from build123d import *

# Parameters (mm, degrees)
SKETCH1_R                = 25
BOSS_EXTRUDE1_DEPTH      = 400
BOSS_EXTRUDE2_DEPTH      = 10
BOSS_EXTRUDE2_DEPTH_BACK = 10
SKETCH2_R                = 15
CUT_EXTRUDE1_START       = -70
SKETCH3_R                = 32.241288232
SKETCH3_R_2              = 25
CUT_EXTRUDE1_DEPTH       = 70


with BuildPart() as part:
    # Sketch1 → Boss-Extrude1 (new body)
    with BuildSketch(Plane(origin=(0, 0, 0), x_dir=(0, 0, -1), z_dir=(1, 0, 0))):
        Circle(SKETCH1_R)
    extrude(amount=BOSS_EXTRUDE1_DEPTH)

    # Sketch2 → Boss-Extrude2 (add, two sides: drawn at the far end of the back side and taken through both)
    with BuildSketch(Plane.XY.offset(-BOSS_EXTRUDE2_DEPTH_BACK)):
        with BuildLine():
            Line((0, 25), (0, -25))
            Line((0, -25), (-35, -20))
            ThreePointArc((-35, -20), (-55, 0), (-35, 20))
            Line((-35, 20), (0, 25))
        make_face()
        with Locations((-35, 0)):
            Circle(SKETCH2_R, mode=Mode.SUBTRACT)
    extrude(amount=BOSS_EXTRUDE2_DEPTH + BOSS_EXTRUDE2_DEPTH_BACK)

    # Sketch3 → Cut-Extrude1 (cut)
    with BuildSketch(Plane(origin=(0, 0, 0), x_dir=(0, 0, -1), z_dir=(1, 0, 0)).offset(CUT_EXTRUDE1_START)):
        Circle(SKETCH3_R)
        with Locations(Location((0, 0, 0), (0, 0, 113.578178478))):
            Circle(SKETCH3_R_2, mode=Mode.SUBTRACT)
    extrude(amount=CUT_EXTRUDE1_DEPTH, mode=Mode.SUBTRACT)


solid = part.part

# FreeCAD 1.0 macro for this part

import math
import FreeCAD as App
import Part
import Sketcher

V = App.Vector
Q = App.Units.Quantity

doc = App.newDocument("Part")
params = doc.addObject("Spreadsheet::Sheet", "Params")
for row, (alias, value) in enumerate([
    ("sketch1_diameter", "50 mm"),
    ("pad1_length", "400 mm"),
    ("sketch2_diameter", "30 mm"),
    ("sketch2_radius", "20 mm"),
    ("sketch2_height", "50 mm"),
    ("pad2_length", "10 mm"),
    ("pad2_length2", "10 mm"),
    ("sketch3_diameter", "50 mm"),
    ("pocket1_length", "70 mm"),
], start=1):
    params.set(f"A{row}", alias)
    params.set(f"B{row}", "=" + value)
    params.setAlias(f"B{row}", alias)

body = doc.addObject("PartDesign::Body", "Body")

sketch1 = body.newObject("Sketcher::SketchObject", "Sketch")
sketch1.AttachmentSupport = (doc.getObject("YZ_Plane"), [""])
sketch1.MapMode = "FlatFace"
sketch1.addGeometry(Part.Circle(V(0, 0, 0), V(0, 0, 1), 25), False)
sketch1.addConstraint([
    Sketcher.Constraint("Coincident", 0, 3, -1, 1),
    Sketcher.Constraint("Diameter", 0, Q("50 mm")),
])
sketch1.setExpression("Constraints[1]", "Params.sketch1_diameter")
pad1 = body.newObject("PartDesign::Pad", "Pad")
pad1.Profile = sketch1
pad1.setExpression("Length", "Params.pad1_length")

sketch2 = body.newObject("Sketcher::SketchObject", "Sketch001")
sketch2.AttachmentSupport = (doc.getObject("XY_Plane"), [""])
sketch2.MapMode = "FlatFace"
sketch2.addGeometry([
    Part.LineSegment(V(0, -25, 0), V(0, 25, 0)),
    Part.LineSegment(V(0, 25, 0), V(-35, 20, 0)),
    Part.ArcOfCircle(Part.Circle(V(-35, 0, 0), V(0, 0, 1), 20), math.radians(90), math.radians(270)),
    Part.LineSegment(V(-35, -20, 0), V(0, -25, 0)),
    Part.Circle(V(-35, 0, 0), V(0, 0, 1), 15),
], False)
sketch2.addConstraint([
    Sketcher.Constraint("Coincident", 0, 2, 1, 1),
    Sketcher.Constraint("Coincident", 1, 2, 2, 1),
    Sketcher.Constraint("Coincident", 2, 2, 3, 1),
    Sketcher.Constraint("Coincident", 3, 2, 0, 1),
    Sketcher.Constraint("Vertical", 0),
    Sketcher.Constraint("Coincident", 4, 3, 2, 3),
    Sketcher.Constraint("Symmetric", 0, 2, 3, 2, -1, 1),
    Sketcher.Constraint("Symmetric", 1, 2, 2, 2, -1),
    Sketcher.Constraint("Vertical", 4, 3, 1, 2),
    Sketcher.Constraint("Diameter", 4, Q("30 mm")),
    Sketcher.Constraint("Radius", 2, Q("20 mm")),
    Sketcher.Constraint("DistanceY", 0, 1, 0, 2, Q("50 mm")),
    Sketcher.Constraint("DistanceX", 2, 3, -1, 1, Q("35 mm")),
])
sketch2.setExpression("Constraints[9]", "Params.sketch2_diameter")
sketch2.setExpression("Constraints[10]", "Params.sketch2_radius")
sketch2.setExpression("Constraints[11]", "Params.sketch2_height")
pad2 = body.newObject("PartDesign::Pad", "Pad001")
pad2.Profile = sketch2
pad2.Type = "TwoLengths"
pad2.setExpression("Length", "Params.pad2_length")
pad2.setExpression("Length2", "Params.pad2_length2")

sketch3 = body.newObject("Sketcher::SketchObject", "Sketch002")
sketch3.AttachmentSupport = (doc.getObject("YZ_Plane"), [""])
sketch3.MapMode = "FlatFace"
sketch3.AttachmentOffset = App.Placement(V(0, 0, -70), App.Rotation())
sketch3.addGeometry([
    Part.Circle(V(0, 0, 0), V(0, 0, 1), 32),
    Part.Circle(V(0, 0, 0), V(0, 0, 1), 25),
], False)
sketch3.addConstraint([
    Sketcher.Constraint("Coincident", 0, 3, -1, 1),
    Sketcher.Constraint("Coincident", 1, 3, -1, 1),
    Sketcher.Constraint("Diameter", 1, Q("50 mm")),
    Sketcher.Constraint("Diameter", 0, Q("64.482576 mm")),
])
sketch3.setExpression("Constraints[2]", "Params.sketch3_diameter")
pocket1 = body.newObject("PartDesign::Pocket", "Pocket")
pocket1.Profile = sketch3
pocket1.setExpression("Length", "Params.pocket1_length")
pocket1.Reversed = True

doc.recompute()
